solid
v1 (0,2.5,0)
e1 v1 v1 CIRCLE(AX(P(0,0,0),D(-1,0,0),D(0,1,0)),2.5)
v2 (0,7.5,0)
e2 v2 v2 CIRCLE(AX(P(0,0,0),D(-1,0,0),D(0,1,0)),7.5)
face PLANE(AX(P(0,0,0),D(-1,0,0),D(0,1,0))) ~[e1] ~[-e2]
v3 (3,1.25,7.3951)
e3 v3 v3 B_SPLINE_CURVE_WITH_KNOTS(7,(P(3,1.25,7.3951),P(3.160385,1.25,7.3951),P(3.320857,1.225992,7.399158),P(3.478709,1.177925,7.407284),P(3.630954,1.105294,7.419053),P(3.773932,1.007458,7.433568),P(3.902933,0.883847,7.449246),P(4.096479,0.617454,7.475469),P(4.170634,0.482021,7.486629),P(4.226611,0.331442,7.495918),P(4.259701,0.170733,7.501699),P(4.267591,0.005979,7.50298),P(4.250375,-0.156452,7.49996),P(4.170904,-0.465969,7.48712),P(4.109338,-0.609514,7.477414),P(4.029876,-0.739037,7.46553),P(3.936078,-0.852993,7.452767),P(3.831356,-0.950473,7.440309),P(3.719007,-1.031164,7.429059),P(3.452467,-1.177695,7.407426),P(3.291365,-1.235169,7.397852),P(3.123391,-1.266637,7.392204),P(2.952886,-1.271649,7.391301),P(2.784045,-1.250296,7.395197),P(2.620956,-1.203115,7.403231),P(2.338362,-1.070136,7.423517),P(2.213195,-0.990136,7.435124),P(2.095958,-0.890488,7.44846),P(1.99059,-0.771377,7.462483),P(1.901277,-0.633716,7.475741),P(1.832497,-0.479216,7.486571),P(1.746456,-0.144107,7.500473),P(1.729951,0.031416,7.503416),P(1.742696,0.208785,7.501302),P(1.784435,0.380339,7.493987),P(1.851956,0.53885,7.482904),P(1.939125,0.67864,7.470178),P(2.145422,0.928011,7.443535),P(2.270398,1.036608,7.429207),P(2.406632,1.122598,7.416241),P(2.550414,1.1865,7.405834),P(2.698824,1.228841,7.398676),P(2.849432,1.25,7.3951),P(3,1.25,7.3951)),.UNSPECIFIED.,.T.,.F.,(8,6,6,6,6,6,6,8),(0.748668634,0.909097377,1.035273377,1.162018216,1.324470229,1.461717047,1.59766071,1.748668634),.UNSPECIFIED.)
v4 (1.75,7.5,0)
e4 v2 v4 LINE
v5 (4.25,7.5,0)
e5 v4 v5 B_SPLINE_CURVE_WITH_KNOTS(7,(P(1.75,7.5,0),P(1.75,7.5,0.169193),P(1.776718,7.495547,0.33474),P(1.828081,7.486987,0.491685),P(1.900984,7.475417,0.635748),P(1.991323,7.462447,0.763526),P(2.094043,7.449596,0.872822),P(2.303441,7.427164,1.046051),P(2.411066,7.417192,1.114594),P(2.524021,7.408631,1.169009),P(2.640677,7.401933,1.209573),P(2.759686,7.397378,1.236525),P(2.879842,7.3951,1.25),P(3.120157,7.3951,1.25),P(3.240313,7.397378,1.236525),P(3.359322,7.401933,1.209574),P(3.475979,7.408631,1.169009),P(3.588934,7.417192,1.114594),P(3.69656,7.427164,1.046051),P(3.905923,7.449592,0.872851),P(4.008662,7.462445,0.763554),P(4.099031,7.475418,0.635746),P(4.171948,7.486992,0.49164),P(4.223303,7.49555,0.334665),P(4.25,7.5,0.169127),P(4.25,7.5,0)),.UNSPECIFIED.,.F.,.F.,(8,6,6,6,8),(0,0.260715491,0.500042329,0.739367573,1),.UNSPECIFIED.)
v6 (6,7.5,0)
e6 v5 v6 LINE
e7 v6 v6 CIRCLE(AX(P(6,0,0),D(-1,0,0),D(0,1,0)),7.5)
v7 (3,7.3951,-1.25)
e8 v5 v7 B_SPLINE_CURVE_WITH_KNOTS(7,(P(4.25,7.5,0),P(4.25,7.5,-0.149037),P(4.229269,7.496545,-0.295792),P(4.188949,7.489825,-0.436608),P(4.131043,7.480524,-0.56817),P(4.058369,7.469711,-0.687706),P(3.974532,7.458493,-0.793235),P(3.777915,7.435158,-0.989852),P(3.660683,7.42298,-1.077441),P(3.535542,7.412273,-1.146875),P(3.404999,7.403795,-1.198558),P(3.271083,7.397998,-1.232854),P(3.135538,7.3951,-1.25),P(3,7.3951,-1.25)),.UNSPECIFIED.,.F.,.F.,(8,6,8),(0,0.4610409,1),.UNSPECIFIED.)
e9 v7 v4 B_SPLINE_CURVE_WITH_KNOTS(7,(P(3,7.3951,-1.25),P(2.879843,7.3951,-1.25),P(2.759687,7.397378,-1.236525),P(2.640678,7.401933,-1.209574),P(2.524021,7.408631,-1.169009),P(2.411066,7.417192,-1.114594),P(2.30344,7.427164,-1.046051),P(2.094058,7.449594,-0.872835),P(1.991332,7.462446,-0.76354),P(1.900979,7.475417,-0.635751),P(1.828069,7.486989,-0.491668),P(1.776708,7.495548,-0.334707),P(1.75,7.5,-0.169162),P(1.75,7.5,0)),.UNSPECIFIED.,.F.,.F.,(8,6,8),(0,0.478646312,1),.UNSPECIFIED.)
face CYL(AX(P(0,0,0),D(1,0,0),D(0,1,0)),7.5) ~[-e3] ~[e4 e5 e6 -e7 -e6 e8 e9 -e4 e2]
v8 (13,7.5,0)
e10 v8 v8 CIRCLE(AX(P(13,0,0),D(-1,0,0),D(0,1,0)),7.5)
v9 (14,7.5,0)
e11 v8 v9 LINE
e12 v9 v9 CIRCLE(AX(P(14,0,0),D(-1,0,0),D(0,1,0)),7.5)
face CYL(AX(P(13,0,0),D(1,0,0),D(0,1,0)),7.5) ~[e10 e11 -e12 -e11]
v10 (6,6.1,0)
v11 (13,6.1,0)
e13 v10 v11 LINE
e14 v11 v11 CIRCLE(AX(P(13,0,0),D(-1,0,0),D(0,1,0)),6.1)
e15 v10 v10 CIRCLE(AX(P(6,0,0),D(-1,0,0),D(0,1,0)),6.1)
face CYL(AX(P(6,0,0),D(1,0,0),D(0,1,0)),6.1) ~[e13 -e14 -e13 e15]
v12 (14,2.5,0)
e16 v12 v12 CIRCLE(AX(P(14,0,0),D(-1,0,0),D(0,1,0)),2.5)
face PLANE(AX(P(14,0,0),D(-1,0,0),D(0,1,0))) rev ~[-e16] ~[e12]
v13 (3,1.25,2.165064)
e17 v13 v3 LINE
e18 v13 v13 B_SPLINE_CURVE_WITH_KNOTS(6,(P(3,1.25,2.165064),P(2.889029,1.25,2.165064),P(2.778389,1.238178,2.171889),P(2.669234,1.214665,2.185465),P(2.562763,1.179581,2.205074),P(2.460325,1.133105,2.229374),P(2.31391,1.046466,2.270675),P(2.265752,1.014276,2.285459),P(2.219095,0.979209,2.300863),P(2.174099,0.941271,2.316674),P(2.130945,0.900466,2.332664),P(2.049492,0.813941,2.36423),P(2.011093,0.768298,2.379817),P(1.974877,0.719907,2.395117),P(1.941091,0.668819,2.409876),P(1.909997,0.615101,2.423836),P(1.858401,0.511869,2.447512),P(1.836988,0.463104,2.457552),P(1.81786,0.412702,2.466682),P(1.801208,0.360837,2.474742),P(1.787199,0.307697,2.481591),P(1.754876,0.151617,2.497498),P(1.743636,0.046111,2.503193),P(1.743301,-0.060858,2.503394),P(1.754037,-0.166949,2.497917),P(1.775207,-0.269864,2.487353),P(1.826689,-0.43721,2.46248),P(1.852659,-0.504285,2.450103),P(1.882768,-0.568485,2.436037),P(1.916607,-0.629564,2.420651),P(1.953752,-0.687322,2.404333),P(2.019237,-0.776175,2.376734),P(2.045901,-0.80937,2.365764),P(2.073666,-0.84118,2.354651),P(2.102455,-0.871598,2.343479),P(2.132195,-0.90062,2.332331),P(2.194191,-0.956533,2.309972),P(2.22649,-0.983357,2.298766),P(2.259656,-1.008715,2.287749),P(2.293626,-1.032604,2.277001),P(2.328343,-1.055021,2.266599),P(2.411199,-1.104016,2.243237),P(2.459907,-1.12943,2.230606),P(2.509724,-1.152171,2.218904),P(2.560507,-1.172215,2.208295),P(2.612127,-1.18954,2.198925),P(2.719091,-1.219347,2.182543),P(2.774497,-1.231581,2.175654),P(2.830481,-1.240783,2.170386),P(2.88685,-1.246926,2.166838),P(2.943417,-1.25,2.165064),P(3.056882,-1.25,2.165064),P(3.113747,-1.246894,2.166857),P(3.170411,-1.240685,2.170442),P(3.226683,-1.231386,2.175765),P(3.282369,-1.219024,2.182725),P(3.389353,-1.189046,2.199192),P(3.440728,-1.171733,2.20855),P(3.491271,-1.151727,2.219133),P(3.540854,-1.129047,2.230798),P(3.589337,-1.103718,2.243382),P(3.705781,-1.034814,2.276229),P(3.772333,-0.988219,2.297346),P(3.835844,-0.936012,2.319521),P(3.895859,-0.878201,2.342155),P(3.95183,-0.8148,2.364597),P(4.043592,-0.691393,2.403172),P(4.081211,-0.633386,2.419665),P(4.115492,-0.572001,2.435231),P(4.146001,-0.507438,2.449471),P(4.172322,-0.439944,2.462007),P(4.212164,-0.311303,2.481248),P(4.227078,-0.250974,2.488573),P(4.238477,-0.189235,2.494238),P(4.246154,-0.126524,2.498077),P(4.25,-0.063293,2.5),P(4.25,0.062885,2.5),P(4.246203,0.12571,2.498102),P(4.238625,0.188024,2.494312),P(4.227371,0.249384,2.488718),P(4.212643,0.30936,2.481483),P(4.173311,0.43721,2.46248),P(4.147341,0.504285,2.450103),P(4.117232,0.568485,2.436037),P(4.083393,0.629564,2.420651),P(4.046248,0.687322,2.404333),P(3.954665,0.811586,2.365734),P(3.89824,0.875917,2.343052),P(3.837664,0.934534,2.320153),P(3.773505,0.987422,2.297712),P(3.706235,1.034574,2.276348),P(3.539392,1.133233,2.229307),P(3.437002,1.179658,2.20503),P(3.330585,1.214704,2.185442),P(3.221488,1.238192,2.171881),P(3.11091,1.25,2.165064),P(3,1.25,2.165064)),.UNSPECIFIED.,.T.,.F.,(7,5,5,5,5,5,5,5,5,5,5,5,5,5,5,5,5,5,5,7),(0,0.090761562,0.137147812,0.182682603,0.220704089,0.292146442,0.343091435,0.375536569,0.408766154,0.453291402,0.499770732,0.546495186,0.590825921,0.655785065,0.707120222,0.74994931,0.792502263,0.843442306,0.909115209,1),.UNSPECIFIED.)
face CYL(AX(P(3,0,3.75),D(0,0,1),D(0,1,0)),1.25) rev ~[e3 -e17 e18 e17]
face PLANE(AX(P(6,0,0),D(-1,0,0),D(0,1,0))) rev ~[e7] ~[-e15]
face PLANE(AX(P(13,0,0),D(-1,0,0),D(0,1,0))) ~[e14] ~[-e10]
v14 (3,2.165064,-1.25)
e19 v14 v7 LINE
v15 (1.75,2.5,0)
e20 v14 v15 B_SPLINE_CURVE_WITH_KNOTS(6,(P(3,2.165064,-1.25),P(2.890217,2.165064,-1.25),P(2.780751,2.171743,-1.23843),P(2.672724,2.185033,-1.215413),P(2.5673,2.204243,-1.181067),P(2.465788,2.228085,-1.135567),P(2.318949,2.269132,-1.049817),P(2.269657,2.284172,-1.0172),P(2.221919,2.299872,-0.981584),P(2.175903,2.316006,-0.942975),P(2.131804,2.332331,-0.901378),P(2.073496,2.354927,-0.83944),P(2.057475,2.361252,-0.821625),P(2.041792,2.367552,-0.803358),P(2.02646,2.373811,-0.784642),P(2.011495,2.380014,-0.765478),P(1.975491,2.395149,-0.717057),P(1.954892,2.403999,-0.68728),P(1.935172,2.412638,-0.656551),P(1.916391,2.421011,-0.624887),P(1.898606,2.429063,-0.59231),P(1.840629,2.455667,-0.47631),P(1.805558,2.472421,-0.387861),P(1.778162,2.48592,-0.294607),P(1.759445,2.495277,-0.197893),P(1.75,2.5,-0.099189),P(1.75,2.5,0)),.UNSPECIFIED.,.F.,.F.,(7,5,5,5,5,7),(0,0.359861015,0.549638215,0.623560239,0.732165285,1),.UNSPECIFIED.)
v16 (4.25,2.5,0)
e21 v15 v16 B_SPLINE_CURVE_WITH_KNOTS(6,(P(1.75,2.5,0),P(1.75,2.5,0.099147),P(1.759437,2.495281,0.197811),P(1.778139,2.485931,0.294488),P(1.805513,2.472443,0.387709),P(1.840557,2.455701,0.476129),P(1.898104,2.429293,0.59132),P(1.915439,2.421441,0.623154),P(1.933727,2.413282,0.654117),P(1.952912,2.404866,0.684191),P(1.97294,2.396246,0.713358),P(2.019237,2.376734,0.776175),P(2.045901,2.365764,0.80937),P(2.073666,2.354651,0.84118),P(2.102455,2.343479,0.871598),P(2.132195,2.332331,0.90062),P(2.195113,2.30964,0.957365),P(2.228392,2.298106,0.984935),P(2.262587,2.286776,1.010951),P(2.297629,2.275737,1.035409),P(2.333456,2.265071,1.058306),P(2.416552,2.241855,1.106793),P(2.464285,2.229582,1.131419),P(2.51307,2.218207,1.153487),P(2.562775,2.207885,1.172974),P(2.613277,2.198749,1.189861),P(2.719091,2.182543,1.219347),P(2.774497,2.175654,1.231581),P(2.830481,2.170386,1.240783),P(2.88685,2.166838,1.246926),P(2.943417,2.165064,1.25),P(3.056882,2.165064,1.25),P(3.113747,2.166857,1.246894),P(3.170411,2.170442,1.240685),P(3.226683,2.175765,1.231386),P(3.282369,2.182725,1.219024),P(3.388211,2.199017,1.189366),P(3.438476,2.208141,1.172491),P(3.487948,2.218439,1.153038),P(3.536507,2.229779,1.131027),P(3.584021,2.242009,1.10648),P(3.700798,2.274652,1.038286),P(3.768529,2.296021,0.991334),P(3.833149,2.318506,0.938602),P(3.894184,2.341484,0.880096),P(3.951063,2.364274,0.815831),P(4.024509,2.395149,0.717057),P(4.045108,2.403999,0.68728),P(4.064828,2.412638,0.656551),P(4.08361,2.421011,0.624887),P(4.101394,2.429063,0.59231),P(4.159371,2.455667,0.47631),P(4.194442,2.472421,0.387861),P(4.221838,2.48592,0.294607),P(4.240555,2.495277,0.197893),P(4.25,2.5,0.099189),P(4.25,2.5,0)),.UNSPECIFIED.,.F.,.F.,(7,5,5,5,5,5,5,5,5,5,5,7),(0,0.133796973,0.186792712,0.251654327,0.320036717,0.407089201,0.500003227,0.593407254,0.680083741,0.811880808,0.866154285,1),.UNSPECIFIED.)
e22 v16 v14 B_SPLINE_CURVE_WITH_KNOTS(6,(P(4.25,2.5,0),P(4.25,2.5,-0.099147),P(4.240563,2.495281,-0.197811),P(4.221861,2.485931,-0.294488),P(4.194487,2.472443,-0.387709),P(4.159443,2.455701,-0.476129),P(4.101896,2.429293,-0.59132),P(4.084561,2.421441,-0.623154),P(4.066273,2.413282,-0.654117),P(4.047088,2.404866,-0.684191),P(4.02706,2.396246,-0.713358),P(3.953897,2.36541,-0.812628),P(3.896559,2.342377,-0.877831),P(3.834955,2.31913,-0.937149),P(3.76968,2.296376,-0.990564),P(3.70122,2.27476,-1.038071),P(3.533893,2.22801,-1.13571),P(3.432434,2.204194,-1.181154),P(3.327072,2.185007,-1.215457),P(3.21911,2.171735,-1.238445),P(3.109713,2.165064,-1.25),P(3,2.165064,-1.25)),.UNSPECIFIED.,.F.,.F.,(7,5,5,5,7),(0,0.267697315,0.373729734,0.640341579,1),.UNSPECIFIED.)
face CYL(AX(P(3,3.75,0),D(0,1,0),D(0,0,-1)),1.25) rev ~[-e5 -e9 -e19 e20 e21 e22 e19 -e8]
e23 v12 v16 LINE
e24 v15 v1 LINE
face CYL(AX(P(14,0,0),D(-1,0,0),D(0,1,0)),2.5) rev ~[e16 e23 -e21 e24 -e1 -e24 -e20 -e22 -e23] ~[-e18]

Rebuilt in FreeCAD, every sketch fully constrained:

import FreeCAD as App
import Part
import Sketcher


def add_polygon(sketch, points):
    """Adds a closed chain of lines whose ends are joined by coincident constraints."""
    first, n = sketch.GeometryCount, len(points)
    for a, b in zip(points, points[1:] + points[:1]):
        sketch.addGeometry(Part.LineSegment(App.Vector(*a, 0), App.Vector(*b, 0)), False)
    for i in range(n):
        sketch.addConstraint(Sketcher.Constraint("Coincident", first + i, 2, first + (i + 1) % n, 1))

doc = App.newDocument("Part")
body = doc.addObject("PartDesign::Body", "Body")

# Sketch on XY plane
sketch1 = body.newObject("Sketcher::SketchObject", "Sketch")
sketch1.AttachmentSupport = (doc.getObject("XY_Plane"), [""])
sketch1.MapMode = "FlatFace"
add_polygon(sketch1, [(0, 7.5), (0, 2.5), (14, 2.5), (14, 7.5), (13, 7.5), (13, 6.1), (6, 6.1), (6, 7.5)])  # lines 0-7
sketch1.addConstraint(Sketcher.Constraint("Vertical", 0))
sketch1.addConstraint(Sketcher.Constraint("Horizontal", 1))
sketch1.addConstraint(Sketcher.Constraint("Vertical", 2))
sketch1.addConstraint(Sketcher.Constraint("Horizontal", 3))
sketch1.addConstraint(Sketcher.Constraint("Vertical", 4))
sketch1.addConstraint(Sketcher.Constraint("Horizontal", 5))
sketch1.addConstraint(Sketcher.Constraint("Vertical", 6))
sketch1.addConstraint(Sketcher.Constraint("Horizontal", 7))
sketch1.addConstraint(Sketcher.Constraint("PointOnObject", 0, 2, -2))
sketch1.addConstraint(Sketcher.Constraint("Horizontal", 3, 2, 6, 2))
sketch1.addConstraint(Sketcher.Constraint("DistanceX", 1, 1, 1, 2, 14.0))
sketch1.addConstraint(Sketcher.Constraint("DistanceX", 3, 2, 3, 1, 1.0))
sketch1.addConstraint(Sketcher.Constraint("DistanceX", 5, 2, 5, 1, 7.0))
sketch1.addConstraint(Sketcher.Constraint("DistanceY", 0, 2, 0, 1, 5.0))
sketch1.addConstraint(Sketcher.Constraint("DistanceY", 4, 2, 4, 1, 1.4))
sketch1.addConstraint(Sketcher.Constraint("DistanceY", -1, 1, 0, 2, 2.5))
revolution = body.newObject("PartDesign::Revolution", "Revolution")
revolution.Profile = sketch1
revolution.ReferenceAxis = (sketch1, ["H_Axis"])
revolution.Angle = 360

# Sketch on YZ plane
sketch2 = body.newObject("Sketcher::SketchObject", "Sketch001")
sketch2.AttachmentSupport = (doc.getObject("YZ_Plane"), [""])
sketch2.MapMode = "FlatFace"
sketch2.AttachmentOffset = App.Placement(App.Vector(0, 0, 3), App.Rotation())
add_polygon(sketch2, [(7.5, 0), (0, 0), (0, -1.2), (7.5, -1.2)])  # lines 0-3
sketch2.addConstraint(Sketcher.Constraint("Horizontal", 0))
sketch2.addConstraint(Sketcher.Constraint("Vertical", 1))
sketch2.addConstraint(Sketcher.Constraint("Horizontal", 2))
sketch2.addConstraint(Sketcher.Constraint("Vertical", 3))
sketch2.addConstraint(Sketcher.Constraint("Coincident", 0, 2, -1, 1))
sketch2.addConstraint(Sketcher.Constraint("DistanceX", 0, 2, 0, 1, 7.5))
sketch2.addConstraint(Sketcher.Constraint("DistanceY", 1, 2, 1, 1, 1.25))
groove = body.newObject("PartDesign::Groove", "Groove")
groove.Profile = sketch2
groove.ReferenceAxis = (sketch2, ["H_Axis"])
groove.Angle = 360

# Sketch on YZ plane
sketch3 = body.newObject("Sketcher::SketchObject", "Sketch002")
sketch3.AttachmentSupport = (doc.getObject("YZ_Plane"), [""])
sketch3.MapMode = "FlatFace"
sketch3.AttachmentOffset = App.Placement(App.Vector(0, 0, 3), App.Rotation())
add_polygon(sketch3, [(0, 7.5), (0, 0), (1.2, 0), (1.2, 7.5)])  # lines 0-3
sketch3.addConstraint(Sketcher.Constraint("Vertical", 0))
sketch3.addConstraint(Sketcher.Constraint("Horizontal", 1))
sketch3.addConstraint(Sketcher.Constraint("Vertical", 2))
sketch3.addConstraint(Sketcher.Constraint("Horizontal", 3))
sketch3.addConstraint(Sketcher.Constraint("Coincident", 0, 2, -1, 1))
sketch3.addConstraint(Sketcher.Constraint("DistanceY", 0, 2, 0, 1, 7.5))
sketch3.addConstraint(Sketcher.Constraint("DistanceX", 1, 1, 1, 2, 1.25))
groove2 = body.newObject("PartDesign::Groove", "Groove001")
groove2.Profile = sketch3
groove2.ReferenceAxis = (sketch3, ["V_Axis"])
groove2.Angle = 360

doc.recompute()
